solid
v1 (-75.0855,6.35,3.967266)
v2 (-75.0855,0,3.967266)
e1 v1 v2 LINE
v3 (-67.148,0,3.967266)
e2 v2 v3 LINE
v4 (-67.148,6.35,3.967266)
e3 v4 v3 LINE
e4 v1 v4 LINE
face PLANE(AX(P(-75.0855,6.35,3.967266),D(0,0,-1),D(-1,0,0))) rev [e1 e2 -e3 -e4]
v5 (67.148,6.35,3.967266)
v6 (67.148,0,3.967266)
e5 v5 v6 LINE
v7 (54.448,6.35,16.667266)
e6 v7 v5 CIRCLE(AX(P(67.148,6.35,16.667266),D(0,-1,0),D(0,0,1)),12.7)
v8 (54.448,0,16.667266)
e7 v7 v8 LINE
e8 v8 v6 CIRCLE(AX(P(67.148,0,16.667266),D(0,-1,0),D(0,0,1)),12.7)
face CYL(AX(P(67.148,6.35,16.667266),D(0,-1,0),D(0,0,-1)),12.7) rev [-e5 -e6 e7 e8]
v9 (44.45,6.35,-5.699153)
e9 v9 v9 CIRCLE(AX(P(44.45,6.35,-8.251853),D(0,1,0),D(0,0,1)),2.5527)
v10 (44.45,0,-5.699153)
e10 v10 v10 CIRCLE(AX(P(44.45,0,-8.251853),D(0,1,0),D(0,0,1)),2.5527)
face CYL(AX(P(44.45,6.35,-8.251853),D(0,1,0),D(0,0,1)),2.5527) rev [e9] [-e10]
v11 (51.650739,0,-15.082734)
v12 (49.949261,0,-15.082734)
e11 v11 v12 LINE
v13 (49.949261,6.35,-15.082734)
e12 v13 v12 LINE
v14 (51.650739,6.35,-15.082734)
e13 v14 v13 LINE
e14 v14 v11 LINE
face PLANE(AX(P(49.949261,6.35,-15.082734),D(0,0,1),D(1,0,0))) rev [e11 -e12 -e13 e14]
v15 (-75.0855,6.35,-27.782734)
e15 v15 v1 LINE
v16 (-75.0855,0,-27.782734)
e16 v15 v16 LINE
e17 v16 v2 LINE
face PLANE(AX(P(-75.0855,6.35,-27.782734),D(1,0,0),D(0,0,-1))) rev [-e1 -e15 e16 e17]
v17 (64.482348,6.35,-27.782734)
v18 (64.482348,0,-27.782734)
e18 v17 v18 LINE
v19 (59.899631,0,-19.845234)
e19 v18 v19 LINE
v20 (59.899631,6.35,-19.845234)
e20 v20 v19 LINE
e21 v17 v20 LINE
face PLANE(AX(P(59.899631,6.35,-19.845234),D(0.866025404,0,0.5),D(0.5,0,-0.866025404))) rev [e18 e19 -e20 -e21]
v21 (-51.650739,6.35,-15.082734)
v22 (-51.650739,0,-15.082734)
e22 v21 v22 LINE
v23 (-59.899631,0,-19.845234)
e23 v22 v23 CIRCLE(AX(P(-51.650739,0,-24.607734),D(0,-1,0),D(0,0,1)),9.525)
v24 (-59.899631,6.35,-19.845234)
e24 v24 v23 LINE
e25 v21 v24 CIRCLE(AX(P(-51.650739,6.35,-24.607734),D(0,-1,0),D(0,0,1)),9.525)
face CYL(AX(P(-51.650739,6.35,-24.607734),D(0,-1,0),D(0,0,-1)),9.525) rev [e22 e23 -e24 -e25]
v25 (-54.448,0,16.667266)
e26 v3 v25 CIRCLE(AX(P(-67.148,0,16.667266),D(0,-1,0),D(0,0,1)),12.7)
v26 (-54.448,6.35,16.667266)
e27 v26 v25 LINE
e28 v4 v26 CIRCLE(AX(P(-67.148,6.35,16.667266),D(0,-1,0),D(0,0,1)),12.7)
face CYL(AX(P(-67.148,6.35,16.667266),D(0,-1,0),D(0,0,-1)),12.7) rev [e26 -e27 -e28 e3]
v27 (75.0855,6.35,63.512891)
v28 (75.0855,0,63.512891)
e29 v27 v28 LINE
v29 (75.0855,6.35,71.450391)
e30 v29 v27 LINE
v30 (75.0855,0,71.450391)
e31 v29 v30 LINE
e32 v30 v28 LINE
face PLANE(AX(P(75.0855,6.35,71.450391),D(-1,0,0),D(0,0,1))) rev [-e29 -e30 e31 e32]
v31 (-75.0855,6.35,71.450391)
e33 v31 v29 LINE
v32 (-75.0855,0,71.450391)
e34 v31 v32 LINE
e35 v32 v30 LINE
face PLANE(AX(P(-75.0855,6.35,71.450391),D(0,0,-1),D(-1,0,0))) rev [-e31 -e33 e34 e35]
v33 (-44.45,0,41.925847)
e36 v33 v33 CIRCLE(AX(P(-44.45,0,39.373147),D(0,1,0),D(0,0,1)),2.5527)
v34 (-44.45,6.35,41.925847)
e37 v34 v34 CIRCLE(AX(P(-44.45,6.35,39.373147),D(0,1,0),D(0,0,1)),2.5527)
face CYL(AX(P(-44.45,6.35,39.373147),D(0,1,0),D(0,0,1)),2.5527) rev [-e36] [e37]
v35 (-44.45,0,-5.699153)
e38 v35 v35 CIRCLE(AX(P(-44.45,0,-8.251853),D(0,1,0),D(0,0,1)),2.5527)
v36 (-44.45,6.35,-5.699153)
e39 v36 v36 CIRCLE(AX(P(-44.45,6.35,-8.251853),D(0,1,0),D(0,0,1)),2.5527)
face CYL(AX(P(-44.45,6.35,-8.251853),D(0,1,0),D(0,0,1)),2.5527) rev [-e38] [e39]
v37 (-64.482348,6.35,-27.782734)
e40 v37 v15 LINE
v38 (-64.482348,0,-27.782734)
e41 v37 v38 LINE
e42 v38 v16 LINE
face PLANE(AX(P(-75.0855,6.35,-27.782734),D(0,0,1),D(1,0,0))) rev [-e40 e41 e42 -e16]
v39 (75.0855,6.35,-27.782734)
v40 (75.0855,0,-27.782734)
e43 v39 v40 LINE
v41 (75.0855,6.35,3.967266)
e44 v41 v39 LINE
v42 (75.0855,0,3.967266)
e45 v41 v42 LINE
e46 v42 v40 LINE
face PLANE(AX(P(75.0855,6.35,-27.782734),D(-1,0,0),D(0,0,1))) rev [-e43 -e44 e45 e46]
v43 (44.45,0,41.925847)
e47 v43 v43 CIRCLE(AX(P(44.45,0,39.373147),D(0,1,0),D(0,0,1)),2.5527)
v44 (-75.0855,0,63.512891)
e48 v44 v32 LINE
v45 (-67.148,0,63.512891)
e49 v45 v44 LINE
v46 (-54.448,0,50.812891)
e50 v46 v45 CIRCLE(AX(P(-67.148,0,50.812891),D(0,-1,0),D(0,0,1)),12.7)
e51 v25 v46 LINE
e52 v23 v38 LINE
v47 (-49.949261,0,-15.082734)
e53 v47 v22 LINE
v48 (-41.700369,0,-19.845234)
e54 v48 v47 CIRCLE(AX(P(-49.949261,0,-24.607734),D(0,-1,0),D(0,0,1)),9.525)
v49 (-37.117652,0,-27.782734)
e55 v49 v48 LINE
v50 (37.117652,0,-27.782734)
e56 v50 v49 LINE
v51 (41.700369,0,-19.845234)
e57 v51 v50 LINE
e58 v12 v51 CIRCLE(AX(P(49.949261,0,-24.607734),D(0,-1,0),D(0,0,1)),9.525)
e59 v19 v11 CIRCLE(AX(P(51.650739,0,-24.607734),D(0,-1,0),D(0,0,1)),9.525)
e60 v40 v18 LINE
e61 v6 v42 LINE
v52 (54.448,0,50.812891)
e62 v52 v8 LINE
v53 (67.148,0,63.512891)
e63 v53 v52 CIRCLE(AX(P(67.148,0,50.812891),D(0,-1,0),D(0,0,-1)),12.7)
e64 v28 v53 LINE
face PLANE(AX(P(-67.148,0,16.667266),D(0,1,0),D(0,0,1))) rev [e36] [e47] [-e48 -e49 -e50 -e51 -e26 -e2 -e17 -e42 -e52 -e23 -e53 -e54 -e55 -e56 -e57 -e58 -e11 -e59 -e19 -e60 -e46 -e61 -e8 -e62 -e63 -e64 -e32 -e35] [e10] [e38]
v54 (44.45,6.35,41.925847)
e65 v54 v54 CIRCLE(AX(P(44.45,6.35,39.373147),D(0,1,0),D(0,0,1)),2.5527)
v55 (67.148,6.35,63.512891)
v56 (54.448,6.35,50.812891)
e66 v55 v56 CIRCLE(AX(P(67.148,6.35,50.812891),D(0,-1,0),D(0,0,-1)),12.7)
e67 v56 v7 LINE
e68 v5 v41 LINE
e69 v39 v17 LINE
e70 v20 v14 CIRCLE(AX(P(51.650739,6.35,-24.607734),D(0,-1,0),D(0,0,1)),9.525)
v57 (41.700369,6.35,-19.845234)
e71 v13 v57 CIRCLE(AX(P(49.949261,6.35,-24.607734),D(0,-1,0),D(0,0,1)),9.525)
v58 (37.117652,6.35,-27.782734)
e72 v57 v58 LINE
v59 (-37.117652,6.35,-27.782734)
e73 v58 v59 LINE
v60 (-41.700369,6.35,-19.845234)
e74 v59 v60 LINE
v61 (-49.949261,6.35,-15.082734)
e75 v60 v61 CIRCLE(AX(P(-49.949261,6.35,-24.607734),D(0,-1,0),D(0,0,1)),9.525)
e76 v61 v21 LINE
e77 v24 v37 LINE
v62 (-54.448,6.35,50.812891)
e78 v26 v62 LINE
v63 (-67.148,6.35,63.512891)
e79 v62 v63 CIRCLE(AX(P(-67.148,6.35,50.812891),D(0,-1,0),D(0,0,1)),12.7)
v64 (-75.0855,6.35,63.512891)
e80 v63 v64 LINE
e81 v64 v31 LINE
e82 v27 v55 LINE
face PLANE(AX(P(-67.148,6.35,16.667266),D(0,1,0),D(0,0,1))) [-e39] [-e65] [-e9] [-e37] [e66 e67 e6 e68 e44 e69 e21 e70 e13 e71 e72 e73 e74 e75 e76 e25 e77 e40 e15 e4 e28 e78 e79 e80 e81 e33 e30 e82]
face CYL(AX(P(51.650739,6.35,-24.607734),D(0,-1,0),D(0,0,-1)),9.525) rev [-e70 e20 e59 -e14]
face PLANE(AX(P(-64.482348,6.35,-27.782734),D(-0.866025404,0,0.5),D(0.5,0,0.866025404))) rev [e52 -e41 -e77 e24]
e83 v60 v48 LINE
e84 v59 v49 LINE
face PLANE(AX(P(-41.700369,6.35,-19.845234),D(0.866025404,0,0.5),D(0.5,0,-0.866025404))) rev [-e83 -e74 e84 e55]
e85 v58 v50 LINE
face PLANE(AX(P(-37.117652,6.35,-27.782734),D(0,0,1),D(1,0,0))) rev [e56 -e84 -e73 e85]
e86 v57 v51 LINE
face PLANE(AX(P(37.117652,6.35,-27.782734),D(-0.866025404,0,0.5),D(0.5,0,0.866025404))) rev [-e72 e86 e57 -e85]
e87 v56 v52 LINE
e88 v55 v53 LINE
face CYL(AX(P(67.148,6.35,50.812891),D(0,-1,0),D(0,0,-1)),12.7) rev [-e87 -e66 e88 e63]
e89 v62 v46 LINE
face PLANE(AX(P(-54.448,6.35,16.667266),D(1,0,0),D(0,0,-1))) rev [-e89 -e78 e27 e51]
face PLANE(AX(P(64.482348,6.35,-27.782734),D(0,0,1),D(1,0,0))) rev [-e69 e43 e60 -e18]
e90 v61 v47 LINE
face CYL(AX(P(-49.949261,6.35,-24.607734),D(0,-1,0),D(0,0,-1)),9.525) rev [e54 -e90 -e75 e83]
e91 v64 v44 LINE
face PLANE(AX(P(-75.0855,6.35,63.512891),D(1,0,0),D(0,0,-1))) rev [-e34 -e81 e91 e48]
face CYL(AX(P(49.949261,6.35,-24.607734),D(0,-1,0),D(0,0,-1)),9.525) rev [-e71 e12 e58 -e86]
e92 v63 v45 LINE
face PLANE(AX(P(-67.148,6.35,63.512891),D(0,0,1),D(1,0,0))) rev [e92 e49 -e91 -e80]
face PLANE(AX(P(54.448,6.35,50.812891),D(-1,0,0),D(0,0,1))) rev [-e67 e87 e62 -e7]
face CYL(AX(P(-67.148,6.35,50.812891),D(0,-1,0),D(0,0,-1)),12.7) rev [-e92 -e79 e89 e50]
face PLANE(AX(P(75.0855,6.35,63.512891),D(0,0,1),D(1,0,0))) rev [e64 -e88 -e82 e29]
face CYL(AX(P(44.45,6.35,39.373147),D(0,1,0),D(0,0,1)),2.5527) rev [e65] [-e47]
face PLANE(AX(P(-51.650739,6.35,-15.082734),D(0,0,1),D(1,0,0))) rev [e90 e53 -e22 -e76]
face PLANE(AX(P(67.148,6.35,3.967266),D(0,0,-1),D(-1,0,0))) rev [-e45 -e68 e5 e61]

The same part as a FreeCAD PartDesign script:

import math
import FreeCAD as App
import Part
import Sketcher
Q = App.Units.Quantity

doc = App.newDocument("Part")
body = doc.addObject("PartDesign::Body", "Body")

sketch1 = body.newObject("Sketcher::SketchObject", "Sketch")
sketch1.AttachmentSupport = (doc.getObject("XZ_Plane"), [""])
sketch1.MapMode = "FlatFace"
sketch1.addGeometry(Part.LineSegment(App.Vector(-54.4, 16.7, 0), App.Vector(-54.4, 50.8, 0)), False)
sketch1.addGeometry(Part.ArcOfCircle(Part.Circle(App.Vector(-67.1, 50.8, 0), App.Vector(0, 0, 1), 12.7), math.radians(0), math.radians(90)), False)
sketch1.addGeometry(Part.LineSegment(App.Vector(-67.1, 63.5, 0), App.Vector(-75.1, 63.5, 0)), False)
sketch1.addGeometry(Part.LineSegment(App.Vector(-75.1, 63.5, 0), App.Vector(-75.1, 71.5, 0)), False)
sketch1.addGeometry(Part.LineSegment(App.Vector(-75.1, 71.5, 0), App.Vector(75.1, 71.5, 0)), False)
sketch1.addGeometry(Part.LineSegment(App.Vector(75.1, 71.5, 0), App.Vector(75.1, 63.5, 0)), False)
sketch1.addGeometry(Part.LineSegment(App.Vector(75.1, 63.5, 0), App.Vector(67.1, 63.5, 0)), False)
sketch1.addGeometry(Part.ArcOfCircle(Part.Circle(App.Vector(67.1, 50.8, 0), App.Vector(0, 0, 1), 12.7), math.radians(90), math.radians(180)), False)
sketch1.addGeometry(Part.LineSegment(App.Vector(54.4, 50.8, 0), App.Vector(54.4, 16.7, 0)), False)
sketch1.addGeometry(Part.ArcOfCircle(Part.Circle(App.Vector(67.1, 16.7, 0), App.Vector(0, 0, 1), 12.7), math.radians(180), math.radians(270)), False)
sketch1.addGeometry(Part.LineSegment(App.Vector(67.1, 4, 0), App.Vector(75.1, 4, 0)), False)
sketch1.addGeometry(Part.LineSegment(App.Vector(75.1, 4, 0), App.Vector(75.1, -27.8, 0)), False)
sketch1.addGeometry(Part.LineSegment(App.Vector(75.1, -27.8, 0), App.Vector(64.5, -27.8, 0)), False)
sketch1.addGeometry(Part.LineSegment(App.Vector(64.5, -27.8, 0), App.Vector(59.9, -19.8, 0)), False)
sketch1.addGeometry(Part.ArcOfCircle(Part.Circle(App.Vector(51.7, -24.6, 0), App.Vector(0, 0, 1), 9.5), math.radians(30), math.radians(90)), False)
sketch1.addGeometry(Part.LineSegment(App.Vector(51.7, -15.1, 0), App.Vector(49.9, -15.1, 0)), False)
sketch1.addGeometry(Part.ArcOfCircle(Part.Circle(App.Vector(49.9, -24.6, 0), App.Vector(0, 0, 1), 9.5), math.radians(90), math.radians(150)), False)
sketch1.addGeometry(Part.LineSegment(App.Vector(41.7, -19.8, 0), App.Vector(37.1, -27.8, 0)), False)
sketch1.addGeometry(Part.LineSegment(App.Vector(37.1, -27.8, 0), App.Vector(-37.1, -27.8, 0)), False)
sketch1.addGeometry(Part.LineSegment(App.Vector(-37.1, -27.8, 0), App.Vector(-41.7, -19.8, 0)), False)
sketch1.addGeometry(Part.ArcOfCircle(Part.Circle(App.Vector(-49.9, -24.6, 0), App.Vector(0, 0, 1), 9.5), math.radians(30), math.radians(90)), False)
sketch1.addGeometry(Part.LineSegment(App.Vector(-49.9, -15.1, 0), App.Vector(-51.7, -15.1, 0)), False)
sketch1.addGeometry(Part.ArcOfCircle(Part.Circle(App.Vector(-51.7, -24.6, 0), App.Vector(0, 0, 1), 9.5), math.radians(90), math.radians(150)), False)
sketch1.addGeometry(Part.LineSegment(App.Vector(-59.9, -19.8, 0), App.Vector(-64.5, -27.8, 0)), False)
sketch1.addGeometry(Part.LineSegment(App.Vector(-64.5, -27.8, 0), App.Vector(-75.1, -27.8, 0)), False)
sketch1.addGeometry(Part.LineSegment(App.Vector(-75.1, -27.8, 0), App.Vector(-75.1, 4, 0)), False)
sketch1.addGeometry(Part.LineSegment(App.Vector(-75.1, 4, 0), App.Vector(-67.1, 4, 0)), False)
sketch1.addGeometry(Part.ArcOfCircle(Part.Circle(App.Vector(-67.1, 16.7, 0), App.Vector(0, 0, 1), 12.7), math.radians(-90), math.radians(0)), False)
sketch1.addConstraint(Sketcher.Constraint("Tangent", 0, 2, 1, 1))
sketch1.addConstraint(Sketcher.Constraint("Tangent", 1, 2, 2, 1))
sketch1.addConstraint(Sketcher.Constraint("Coincident", 2, 2, 3, 1))
sketch1.addConstraint(Sketcher.Constraint("Coincident", 3, 2, 4, 1))
sketch1.addConstraint(Sketcher.Constraint("Coincident", 4, 2, 5, 1))
sketch1.addConstraint(Sketcher.Constraint("Coincident", 5, 2, 6, 1))
sketch1.addConstraint(Sketcher.Constraint("Tangent", 6, 2, 7, 1))
sketch1.addConstraint(Sketcher.Constraint("Tangent", 7, 2, 8, 1))
sketch1.addConstraint(Sketcher.Constraint("Tangent", 8, 2, 9, 1))
sketch1.addConstraint(Sketcher.Constraint("Tangent", 9, 2, 10, 1))
sketch1.addConstraint(Sketcher.Constraint("Coincident", 10, 2, 11, 1))
sketch1.addConstraint(Sketcher.Constraint("Coincident", 11, 2, 12, 1))
sketch1.addConstraint(Sketcher.Constraint("Coincident", 12, 2, 13, 1))
sketch1.addConstraint(Sketcher.Constraint("Tangent", 13, 2, 14, 1))
sketch1.addConstraint(Sketcher.Constraint("Tangent", 14, 2, 15, 1))
sketch1.addConstraint(Sketcher.Constraint("Tangent", 15, 2, 16, 1))
sketch1.addConstraint(Sketcher.Constraint("Tangent", 16, 2, 17, 1))
sketch1.addConstraint(Sketcher.Constraint("Coincident", 17, 2, 18, 1))
sketch1.addConstraint(Sketcher.Constraint("Coincident", 18, 2, 19, 1))
sketch1.addConstraint(Sketcher.Constraint("Tangent", 19, 2, 20, 1))
sketch1.addConstraint(Sketcher.Constraint("Tangent", 20, 2, 21, 1))
sketch1.addConstraint(Sketcher.Constraint("Tangent", 21, 2, 22, 1))
sketch1.addConstraint(Sketcher.Constraint("Tangent", 22, 2, 23, 1))
sketch1.addConstraint(Sketcher.Constraint("Coincident", 23, 2, 24, 1))
sketch1.addConstraint(Sketcher.Constraint("Coincident", 24, 2, 25, 1))
sketch1.addConstraint(Sketcher.Constraint("Coincident", 25, 2, 26, 1))
sketch1.addConstraint(Sketcher.Constraint("Tangent", 26, 2, 27, 1))
sketch1.addConstraint(Sketcher.Constraint("Tangent", 27, 2, 0, 1))
sketch1.addConstraint(Sketcher.Constraint("Vertical", 0))
sketch1.addConstraint(Sketcher.Constraint("Horizontal", 2))
sketch1.addConstraint(Sketcher.Constraint("Vertical", 3))
sketch1.addConstraint(Sketcher.Constraint("Horizontal", 4))
sketch1.addConstraint(Sketcher.Constraint("Vertical", 5))
sketch1.addConstraint(Sketcher.Constraint("Horizontal", 6))
sketch1.addConstraint(Sketcher.Constraint("Vertical", 8))
sketch1.addConstraint(Sketcher.Constraint("Horizontal", 10))
sketch1.addConstraint(Sketcher.Constraint("Vertical", 11))
sketch1.addConstraint(Sketcher.Constraint("Horizontal", 12))
sketch1.addConstraint(Sketcher.Constraint("Horizontal", 15))
sketch1.addConstraint(Sketcher.Constraint("Horizontal", 18))
sketch1.addConstraint(Sketcher.Constraint("Horizontal", 21))
sketch1.addConstraint(Sketcher.Constraint("Horizontal", 24))
sketch1.addConstraint(Sketcher.Constraint("Vertical", 25))
sketch1.addConstraint(Sketcher.Constraint("Horizontal", 26))
sketch1.addConstraint(Sketcher.Constraint("Equal", 1, 7))
sketch1.addConstraint(Sketcher.Constraint("Equal", 7, 9))
sketch1.addConstraint(Sketcher.Constraint("Equal", 14, 16))
sketch1.addConstraint(Sketcher.Constraint("Equal", 16, 20))
sketch1.addConstraint(Sketcher.Constraint("Equal", 20, 22))
sketch1.addConstraint(Sketcher.Constraint("Equal", 9, 27))
sketch1.addConstraint(Sketcher.Constraint("Symmetric", 1, 3, 7, 3, -2))
sketch1.addConstraint(Sketcher.Constraint("Symmetric", 16, 3, 20, 3, -2))
sketch1.addConstraint(Sketcher.Constraint("Symmetric", 13, 2, 22, 2, -2))
sketch1.addConstraint(Sketcher.Constraint("Symmetric", 11, 2, 24, 2, -2))
sketch1.addConstraint(Sketcher.Constraint("Parallel", 13, 19))
sketch1.addConstraint(Sketcher.Constraint("Parallel", 17, 23))
sketch1.addConstraint(Sketcher.Constraint("Horizontal", 9, 3, 27, 3))
sketch1.addConstraint(Sketcher.Constraint("Horizontal", 12, 2, 17, 2))
sketch1.addConstraint(Sketcher.Constraint("Vertical", 5, 2, 10, 2))
sketch1.addConstraint(Sketcher.Constraint("Vertical", 3, 2, 24, 2))
sketch1.addConstraint(Sketcher.Constraint("Equal", 26, 3))
sketch1.addConstraint(Sketcher.Constraint("Radius", 1, Q("0.5 in")))
sketch1.addConstraint(Sketcher.Constraint("Angle", 13, Q("120 deg")))
sketch1.addConstraint(Sketcher.Constraint("Radius", 14, Q("0.375 in")))
sketch1.addConstraint(Sketcher.Constraint("DistanceX", 20, 3, 14, 3, Q("4 in")))
sketch1.addConstraint(Sketcher.Constraint("DistanceY", 11, 2, 11, 1, Q("1.25 in")))
sketch1.addConstraint(Sketcher.Constraint("DistanceY", 12, 2, 14, 2, Q("0.5 in")))
sketch1.addConstraint(Sketcher.Constraint("DistanceX", 2, 2, 2, 1, Q("0.3125 in")))
sketch1.addConstraint(Sketcher.Constraint("DistanceX", 4, 1, 4, 2, Q("150.171 mm")))
sketch1.addConstraint(Sketcher.Constraint("DistanceX", 12, 2, 12, 1, Q("10.603152 mm")))
sketch1.addConstraint(Sketcher.Constraint("DistanceY", 0, 1, 0, 2, Q("34.145625 mm")))
sketch1.addConstraint(Sketcher.Constraint("DistanceY", -1, 1, 1, 3, Q("50.812891 mm")))
pad1 = body.newObject("PartDesign::Pad", "Pad")
pad1.Profile = sketch1
pad1.Length = Q("0.25 in")
pad1.Reversed = True

sketch2 = body.newObject("Sketcher::SketchObject", "Sketch001")
sketch2.AttachmentSupport = (doc.getObject("XZ_Plane"), [""])
sketch2.MapMode = "FlatFace"
sketch2.AttachmentOffset = App.Placement(App.Vector(0, 0, -0.25 * 25.4), App.Rotation())
sketch2.addGeometry(Part.Circle(App.Vector(-44.4, -8.3, 0), App.Vector(0, 0, 1), 2.6), False)
sketch2.addGeometry(Part.Circle(App.Vector(-44.4, 39.4, 0), App.Vector(0, 0, 1), 2.6), False)
sketch2.addGeometry(Part.Circle(App.Vector(44.5, -8.3, 0), App.Vector(0, 0, 1), 2.6), False)
sketch2.addGeometry(Part.Circle(App.Vector(44.5, 39.4, 0), App.Vector(0, 0, 1), 2.6), False)
sketch2.addConstraint(Sketcher.Constraint("Equal", 0, 1))
sketch2.addConstraint(Sketcher.Constraint("Equal", 1, 2))
sketch2.addConstraint(Sketcher.Constraint("Equal", 2, 3))
sketch2.addConstraint(Sketcher.Constraint("Symmetric", 0, 3, 2, 3, -2))
sketch2.addConstraint(Sketcher.Constraint("Symmetric", 1, 3, 3, 3, -2))
sketch2.addConstraint(Sketcher.Constraint("Vertical", 0, 3, 1, 3))
sketch2.addConstraint(Sketcher.Constraint("Diameter", 0, Q("0.201 in")))
sketch2.addConstraint(Sketcher.Constraint("DistanceX", 0, 3, 2, 3, Q("3.5 in")))
sketch2.addConstraint(Sketcher.Constraint("DistanceY", 0, 3, 1, 3, Q("1.875 in")))
sketch2.addConstraint(Sketcher.Constraint("DistanceY", 0, 3, -1, 1, Q("8.251853 mm")))
doc.recompute()
hole = body.newObject("PartDesign::Hole", "Hole")
hole.Profile = sketch2
hole.ThreadType = "None"
hole.Diameter = Q("0.201 in")
hole.DepthType = "ThroughAll"
hole.Reversed = True

doc.recompute()
